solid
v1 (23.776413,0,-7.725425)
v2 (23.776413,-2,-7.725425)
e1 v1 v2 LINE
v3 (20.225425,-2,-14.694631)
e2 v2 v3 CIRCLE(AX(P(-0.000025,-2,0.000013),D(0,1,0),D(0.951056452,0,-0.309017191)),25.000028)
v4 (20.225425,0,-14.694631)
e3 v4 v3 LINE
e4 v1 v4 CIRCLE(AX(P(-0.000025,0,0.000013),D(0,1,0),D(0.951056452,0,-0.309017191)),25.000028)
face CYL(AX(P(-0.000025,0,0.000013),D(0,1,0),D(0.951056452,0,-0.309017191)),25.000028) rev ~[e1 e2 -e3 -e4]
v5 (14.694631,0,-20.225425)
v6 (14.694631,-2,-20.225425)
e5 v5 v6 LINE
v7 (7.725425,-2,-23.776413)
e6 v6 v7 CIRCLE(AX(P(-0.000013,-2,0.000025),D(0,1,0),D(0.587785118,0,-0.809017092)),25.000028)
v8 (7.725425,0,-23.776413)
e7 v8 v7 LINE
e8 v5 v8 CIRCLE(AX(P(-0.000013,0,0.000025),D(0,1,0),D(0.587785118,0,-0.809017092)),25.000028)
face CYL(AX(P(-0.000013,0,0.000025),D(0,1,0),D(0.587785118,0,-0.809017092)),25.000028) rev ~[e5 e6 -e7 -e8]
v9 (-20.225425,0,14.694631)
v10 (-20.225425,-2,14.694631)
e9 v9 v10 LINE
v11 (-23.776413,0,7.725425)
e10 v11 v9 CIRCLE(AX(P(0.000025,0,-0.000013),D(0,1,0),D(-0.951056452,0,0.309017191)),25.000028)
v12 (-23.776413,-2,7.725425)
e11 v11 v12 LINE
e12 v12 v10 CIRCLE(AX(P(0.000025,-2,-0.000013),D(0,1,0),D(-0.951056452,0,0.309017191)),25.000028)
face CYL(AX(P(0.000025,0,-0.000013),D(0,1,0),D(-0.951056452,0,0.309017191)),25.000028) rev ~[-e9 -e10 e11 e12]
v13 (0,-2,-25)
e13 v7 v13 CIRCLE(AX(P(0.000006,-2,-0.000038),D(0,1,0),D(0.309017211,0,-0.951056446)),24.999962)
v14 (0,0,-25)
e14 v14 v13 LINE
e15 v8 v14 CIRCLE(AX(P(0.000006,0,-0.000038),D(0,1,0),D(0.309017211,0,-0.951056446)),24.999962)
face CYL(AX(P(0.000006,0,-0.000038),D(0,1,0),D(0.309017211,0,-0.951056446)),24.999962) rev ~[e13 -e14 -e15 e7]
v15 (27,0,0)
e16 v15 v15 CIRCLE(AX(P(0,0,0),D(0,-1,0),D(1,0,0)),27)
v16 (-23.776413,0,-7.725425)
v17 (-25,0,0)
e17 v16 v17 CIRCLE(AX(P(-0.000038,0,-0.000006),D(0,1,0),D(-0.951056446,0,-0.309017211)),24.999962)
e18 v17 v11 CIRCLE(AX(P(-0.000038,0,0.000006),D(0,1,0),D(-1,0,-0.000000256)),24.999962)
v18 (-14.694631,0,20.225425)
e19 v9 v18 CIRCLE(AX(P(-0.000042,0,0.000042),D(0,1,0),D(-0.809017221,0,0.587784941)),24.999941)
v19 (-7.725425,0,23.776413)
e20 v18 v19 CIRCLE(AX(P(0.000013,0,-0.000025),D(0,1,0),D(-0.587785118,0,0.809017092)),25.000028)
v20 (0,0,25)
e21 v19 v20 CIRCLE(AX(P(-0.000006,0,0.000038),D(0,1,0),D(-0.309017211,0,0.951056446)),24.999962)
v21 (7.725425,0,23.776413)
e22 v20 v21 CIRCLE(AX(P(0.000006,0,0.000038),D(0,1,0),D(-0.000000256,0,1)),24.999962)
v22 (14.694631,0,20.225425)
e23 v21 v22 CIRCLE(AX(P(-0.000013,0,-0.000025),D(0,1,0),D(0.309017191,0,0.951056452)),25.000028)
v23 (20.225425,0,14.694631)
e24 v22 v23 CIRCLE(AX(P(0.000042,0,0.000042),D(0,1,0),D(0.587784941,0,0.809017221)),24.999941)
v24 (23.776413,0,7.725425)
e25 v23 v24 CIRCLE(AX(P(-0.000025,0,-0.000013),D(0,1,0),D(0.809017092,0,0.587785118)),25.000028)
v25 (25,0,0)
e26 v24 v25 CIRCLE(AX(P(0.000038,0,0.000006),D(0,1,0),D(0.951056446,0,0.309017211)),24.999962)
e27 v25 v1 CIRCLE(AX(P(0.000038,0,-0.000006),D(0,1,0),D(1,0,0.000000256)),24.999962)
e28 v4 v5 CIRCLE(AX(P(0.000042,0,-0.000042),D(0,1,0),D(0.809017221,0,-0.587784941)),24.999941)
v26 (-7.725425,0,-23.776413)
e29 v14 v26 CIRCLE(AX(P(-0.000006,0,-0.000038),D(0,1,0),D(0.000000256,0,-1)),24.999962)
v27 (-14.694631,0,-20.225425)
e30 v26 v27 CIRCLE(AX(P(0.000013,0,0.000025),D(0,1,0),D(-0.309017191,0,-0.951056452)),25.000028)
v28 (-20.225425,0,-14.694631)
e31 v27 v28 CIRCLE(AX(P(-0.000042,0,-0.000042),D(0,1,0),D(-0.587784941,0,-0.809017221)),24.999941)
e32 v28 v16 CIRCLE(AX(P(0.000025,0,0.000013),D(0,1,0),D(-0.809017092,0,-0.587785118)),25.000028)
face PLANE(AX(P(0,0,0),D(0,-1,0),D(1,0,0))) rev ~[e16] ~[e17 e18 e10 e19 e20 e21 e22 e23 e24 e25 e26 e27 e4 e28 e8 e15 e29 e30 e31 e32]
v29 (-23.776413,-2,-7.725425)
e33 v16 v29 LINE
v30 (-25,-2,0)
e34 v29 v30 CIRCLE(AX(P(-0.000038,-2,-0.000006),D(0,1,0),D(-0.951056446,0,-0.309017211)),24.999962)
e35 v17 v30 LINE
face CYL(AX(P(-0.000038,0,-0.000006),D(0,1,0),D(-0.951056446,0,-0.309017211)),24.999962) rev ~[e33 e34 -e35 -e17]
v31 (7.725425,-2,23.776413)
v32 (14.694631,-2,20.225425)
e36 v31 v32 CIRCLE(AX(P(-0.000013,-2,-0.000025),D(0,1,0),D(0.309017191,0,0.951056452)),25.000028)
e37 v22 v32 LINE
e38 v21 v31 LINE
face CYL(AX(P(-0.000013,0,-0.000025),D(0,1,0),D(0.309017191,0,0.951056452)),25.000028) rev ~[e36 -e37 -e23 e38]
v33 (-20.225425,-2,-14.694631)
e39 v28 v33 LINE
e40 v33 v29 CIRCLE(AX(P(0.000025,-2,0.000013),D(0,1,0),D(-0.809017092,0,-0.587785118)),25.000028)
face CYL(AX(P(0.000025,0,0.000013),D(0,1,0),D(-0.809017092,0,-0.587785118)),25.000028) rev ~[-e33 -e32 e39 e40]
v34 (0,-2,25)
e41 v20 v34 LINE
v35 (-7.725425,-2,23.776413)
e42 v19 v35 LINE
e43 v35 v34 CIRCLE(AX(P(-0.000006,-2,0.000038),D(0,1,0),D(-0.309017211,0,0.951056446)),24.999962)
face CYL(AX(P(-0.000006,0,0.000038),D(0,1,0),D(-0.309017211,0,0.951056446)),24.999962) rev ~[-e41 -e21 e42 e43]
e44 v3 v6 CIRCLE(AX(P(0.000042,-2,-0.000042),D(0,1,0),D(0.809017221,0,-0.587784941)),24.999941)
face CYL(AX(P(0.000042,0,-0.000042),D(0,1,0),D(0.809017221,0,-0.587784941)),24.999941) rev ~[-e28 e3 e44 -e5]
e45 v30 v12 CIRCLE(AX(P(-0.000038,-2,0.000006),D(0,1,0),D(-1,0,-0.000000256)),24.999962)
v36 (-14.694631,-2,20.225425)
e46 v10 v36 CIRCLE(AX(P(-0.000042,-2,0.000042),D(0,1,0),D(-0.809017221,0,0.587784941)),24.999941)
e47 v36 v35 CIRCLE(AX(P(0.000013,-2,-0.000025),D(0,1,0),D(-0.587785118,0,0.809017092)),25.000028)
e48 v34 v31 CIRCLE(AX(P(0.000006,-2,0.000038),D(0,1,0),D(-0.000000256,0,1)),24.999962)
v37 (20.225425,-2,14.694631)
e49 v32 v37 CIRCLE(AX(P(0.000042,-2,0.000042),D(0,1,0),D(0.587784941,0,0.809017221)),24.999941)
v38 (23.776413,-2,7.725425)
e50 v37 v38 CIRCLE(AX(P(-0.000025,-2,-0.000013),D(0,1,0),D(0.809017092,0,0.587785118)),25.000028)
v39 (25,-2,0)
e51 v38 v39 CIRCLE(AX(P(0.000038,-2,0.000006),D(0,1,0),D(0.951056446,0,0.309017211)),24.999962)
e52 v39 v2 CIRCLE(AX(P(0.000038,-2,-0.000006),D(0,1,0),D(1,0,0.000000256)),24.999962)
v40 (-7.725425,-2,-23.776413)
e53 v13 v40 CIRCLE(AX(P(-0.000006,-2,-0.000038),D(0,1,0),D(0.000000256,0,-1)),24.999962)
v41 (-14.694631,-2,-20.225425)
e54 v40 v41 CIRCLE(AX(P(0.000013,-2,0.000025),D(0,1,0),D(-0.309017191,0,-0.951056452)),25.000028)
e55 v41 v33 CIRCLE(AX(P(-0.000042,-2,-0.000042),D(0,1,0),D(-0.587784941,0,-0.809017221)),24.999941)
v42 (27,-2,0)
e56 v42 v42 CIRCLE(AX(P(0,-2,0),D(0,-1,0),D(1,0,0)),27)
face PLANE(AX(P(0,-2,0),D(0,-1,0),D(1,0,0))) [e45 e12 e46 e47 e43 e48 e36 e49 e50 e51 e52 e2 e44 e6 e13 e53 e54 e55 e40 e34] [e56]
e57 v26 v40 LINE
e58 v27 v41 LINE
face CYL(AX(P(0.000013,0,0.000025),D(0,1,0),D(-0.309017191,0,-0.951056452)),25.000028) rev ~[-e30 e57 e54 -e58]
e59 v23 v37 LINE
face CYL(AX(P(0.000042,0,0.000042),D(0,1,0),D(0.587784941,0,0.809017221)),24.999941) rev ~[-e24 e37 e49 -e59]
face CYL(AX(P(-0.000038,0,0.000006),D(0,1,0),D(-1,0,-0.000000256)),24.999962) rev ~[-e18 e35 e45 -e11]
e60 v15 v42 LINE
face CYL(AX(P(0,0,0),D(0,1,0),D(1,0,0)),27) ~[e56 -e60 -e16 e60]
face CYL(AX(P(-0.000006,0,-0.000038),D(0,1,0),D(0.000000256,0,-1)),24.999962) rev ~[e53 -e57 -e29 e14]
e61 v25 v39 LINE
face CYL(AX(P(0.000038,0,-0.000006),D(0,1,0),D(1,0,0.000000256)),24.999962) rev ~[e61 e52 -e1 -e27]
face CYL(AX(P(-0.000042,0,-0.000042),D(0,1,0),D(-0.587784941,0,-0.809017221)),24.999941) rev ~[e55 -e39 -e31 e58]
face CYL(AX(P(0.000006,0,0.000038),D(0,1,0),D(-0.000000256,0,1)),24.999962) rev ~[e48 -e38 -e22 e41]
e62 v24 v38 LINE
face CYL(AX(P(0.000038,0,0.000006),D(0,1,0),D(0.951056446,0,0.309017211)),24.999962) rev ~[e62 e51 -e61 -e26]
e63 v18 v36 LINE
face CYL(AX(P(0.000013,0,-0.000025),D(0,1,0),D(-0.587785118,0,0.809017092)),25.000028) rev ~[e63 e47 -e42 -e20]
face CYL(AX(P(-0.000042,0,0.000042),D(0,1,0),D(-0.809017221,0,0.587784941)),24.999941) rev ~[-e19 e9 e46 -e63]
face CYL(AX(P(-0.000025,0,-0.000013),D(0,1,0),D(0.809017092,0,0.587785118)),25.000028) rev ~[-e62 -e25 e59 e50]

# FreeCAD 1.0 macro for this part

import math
import FreeCAD as App
import Part
import Sketcher

doc = App.newDocument("Part")
params = doc.addObject("Spreadsheet::Sheet", "Params")
for row, (alias, value) in enumerate([
    ("sketch1_diameter", "54 mm"),
    ("pad1_length", "2 mm"),
], start=1):
    params.set(f"A{row}", alias)
    params.set(f"B{row}", "=" + value)
    params.setAlias(f"B{row}", alias)

body = doc.addObject("PartDesign::Body", "Body")

# Sketch on XZ plane
sketch1 = body.newObject("Sketcher::SketchObject", "Sketch")
sketch1.AttachmentSupport = (doc.getObject("XZ_Plane"), [""])
sketch1.MapMode = "FlatFace"
sketch1.addGeometry(Part.Circle(App.Vector(0, 0, 0), App.Vector(0, 0, 1), 27), False)
sketch1.addGeometry(Part.ArcOfCircle(Part.Circle(App.Vector(-0.000025, -0.000013, 0), App.Vector(0, 0, 1), 25.000028), math.radians(18.000012), math.radians(35.99999)), False)
sketch1.addGeometry(Part.ArcOfCircle(Part.Circle(App.Vector(0.000038, 0.000006, 0), App.Vector(0, 0, 1), 24.999962), math.radians(-0.000015), math.radians(18.000013)), False)
sketch1.addGeometry(Part.ArcOfCircle(Part.Circle(App.Vector(0.000038, -0.000006, 0), App.Vector(0, 0, 1), 24.999962), math.radians(-18.000013), math.radians(0.000015)), False)
sketch1.addGeometry(Part.ArcOfCircle(Part.Circle(App.Vector(-0.000025, 0.000013, 0), App.Vector(0, 0, 1), 25.000028), math.radians(-35.99999), math.radians(-18.000012)), False)
sketch1.addGeometry(Part.ArcOfCircle(Part.Circle(App.Vector(0.000042, -0.000042, 0), App.Vector(0, 0, 1), 24.999941), math.radians(-54.000022), math.radians(-35.999978)), False)
sketch1.addGeometry(Part.ArcOfCircle(Part.Circle(App.Vector(-0.000013, 0.000025, 0), App.Vector(0, 0, 1), 25.000028), math.radians(-71.999988), math.radians(-54.00001)), False)
sketch1.addGeometry(Part.ArcOfCircle(Part.Circle(App.Vector(0.000006, -0.000038, 0), App.Vector(0, 0, 1), 24.999962), math.radians(-90.000015), math.radians(-71.999987)), False)
sketch1.addGeometry(Part.ArcOfCircle(Part.Circle(App.Vector(-0.000006, -0.000038, 0), App.Vector(0, 0, 1), 24.999962), math.radians(-108.000013), math.radians(-89.999985)), False)
sketch1.addGeometry(Part.ArcOfCircle(Part.Circle(App.Vector(0.000013, 0.000025, 0), App.Vector(0, 0, 1), 25.000028), math.radians(-125.99999), math.radians(-108.000012)), False)
sketch1.addGeometry(Part.ArcOfCircle(Part.Circle(App.Vector(-0.000042, -0.000042, 0), App.Vector(0, 0, 1), 24.999941), math.radians(-144.000022), math.radians(-125.999978)), False)
sketch1.addGeometry(Part.ArcOfCircle(Part.Circle(App.Vector(0.000025, 0.000013, 0), App.Vector(0, 0, 1), 25.000028), math.radians(-161.999988), math.radians(-144.00001)), False)
sketch1.addGeometry(Part.ArcOfCircle(Part.Circle(App.Vector(-0.000038, -0.000006, 0), App.Vector(0, 0, 1), 24.999962), math.radians(179.999985), math.radians(198.000013)), False)
sketch1.addGeometry(Part.ArcOfCircle(Part.Circle(App.Vector(-0.000038, 0.000006, 0), App.Vector(0, 0, 1), 24.999962), math.radians(161.999987), math.radians(180.000015)), False)
sketch1.addGeometry(Part.ArcOfCircle(Part.Circle(App.Vector(0.000025, -0.000013, 0), App.Vector(0, 0, 1), 25.000028), math.radians(144.00001), math.radians(161.999988)), False)
sketch1.addGeometry(Part.ArcOfCircle(Part.Circle(App.Vector(-0.000042, 0.000042, 0), App.Vector(0, 0, 1), 24.999941), math.radians(125.999978), math.radians(144.000022)), False)
sketch1.addGeometry(Part.ArcOfCircle(Part.Circle(App.Vector(0.000013, -0.000025, 0), App.Vector(0, 0, 1), 25.000028), math.radians(108.000012), math.radians(125.99999)), False)
sketch1.addGeometry(Part.ArcOfCircle(Part.Circle(App.Vector(-0.000006, 0.000038, 0), App.Vector(0, 0, 1), 24.999962), math.radians(89.999985), math.radians(108.000013)), False)
sketch1.addGeometry(Part.ArcOfCircle(Part.Circle(App.Vector(0.000006, 0.000038, 0), App.Vector(0, 0, 1), 24.999962), math.radians(71.999987), math.radians(90.000015)), False)
sketch1.addGeometry(Part.ArcOfCircle(Part.Circle(App.Vector(-0.000013, -0.000025, 0), App.Vector(0, 0, 1), 25.000028), math.radians(54.00001), math.radians(71.999988)), False)
sketch1.addGeometry(Part.ArcOfCircle(Part.Circle(App.Vector(0.000042, 0.000042, 0), App.Vector(0, 0, 1), 24.999941), math.radians(35.999978), math.radians(54.000022)), False)
sketch1.addConstraint(Sketcher.Constraint("Coincident", 1, 1, 2, 2))
sketch1.addConstraint(Sketcher.Constraint("Coincident", 2, 1, 3, 2))
sketch1.addConstraint(Sketcher.Constraint("Coincident", 3, 1, 4, 2))
sketch1.addConstraint(Sketcher.Constraint("Coincident", 4, 1, 5, 2))
sketch1.addConstraint(Sketcher.Constraint("Coincident", 5, 1, 6, 2))
sketch1.addConstraint(Sketcher.Constraint("Coincident", 6, 1, 7, 2))
sketch1.addConstraint(Sketcher.Constraint("Coincident", 7, 1, 8, 2))
sketch1.addConstraint(Sketcher.Constraint("Coincident", 8, 1, 9, 2))
sketch1.addConstraint(Sketcher.Constraint("Coincident", 9, 1, 10, 2))
sketch1.addConstraint(Sketcher.Constraint("Coincident", 10, 1, 11, 2))
sketch1.addConstraint(Sketcher.Constraint("Coincident", 11, 1, 12, 2))
sketch1.addConstraint(Sketcher.Constraint("Coincident", 12, 1, 13, 2))
sketch1.addConstraint(Sketcher.Constraint("Coincident", 13, 1, 14, 2))
sketch1.addConstraint(Sketcher.Constraint("Coincident", 14, 1, 15, 2))
sketch1.addConstraint(Sketcher.Constraint("Coincident", 15, 1, 16, 2))
sketch1.addConstraint(Sketcher.Constraint("Coincident", 16, 1, 17, 2))
sketch1.addConstraint(Sketcher.Constraint("Coincident", 17, 1, 18, 2))
sketch1.addConstraint(Sketcher.Constraint("Coincident", 18, 1, 19, 2))
sketch1.addConstraint(Sketcher.Constraint("Coincident", 19, 1, 20, 2))
sketch1.addConstraint(Sketcher.Constraint("Coincident", 20, 1, 1, 2))
sketch1.addConstraint(Sketcher.Constraint("Coincident", 0, 3, -1, 1))
sketch1.addConstraint(Sketcher.Constraint("PointOnObject", 2, 1, -1))
sketch1.addConstraint(Sketcher.Constraint("PointOnObject", 7, 1, -2))
sketch1.addConstraint(Sketcher.Constraint("PointOnObject", 12, 1, -1))
sketch1.addConstraint(Sketcher.Constraint("PointOnObject", 17, 1, -2))
sketch1.addConstraint(Sketcher.Constraint("Diameter", 0, 54.0))
sketch1.addConstraint(Sketcher.Constraint("DistanceX", -1, 1, 2, 1, 25.0))
sketch1.addConstraint(Sketcher.Constraint("DistanceY", 7, 1, -1, 1, 25.0))
sketch1.addConstraint(Sketcher.Constraint("DistanceX", 12, 1, -1, 1, 25.0))
sketch1.addConstraint(Sketcher.Constraint("DistanceY", -1, 1, 17, 1, 25.0))
sketch1.addConstraint(Sketcher.Constraint("DistanceY", 5, 1, 3, 1, 12.5))
sketch1.addConstraint(Sketcher.Constraint("DistanceX", 6, 1, 4, 1, 12.5))
sketch1.addConstraint(Sketcher.Constraint("DistanceX", 10, 1, 8, 1, 12.5))
sketch1.addConstraint(Sketcher.Constraint("DistanceY", 9, 1, 11, 1, 12.5))
sketch1.addConstraint(Sketcher.Constraint("DistanceY", 13, 1, 15, 1, 12.5))
sketch1.addConstraint(Sketcher.Constraint("DistanceX", 14, 1, 16, 1, 12.5))
sketch1.addConstraint(Sketcher.Constraint("DistanceY", 1, 1, 19, 1, 12.5))
sketch1.addConstraint(Sketcher.Constraint("DistanceX", 18, 1, 20, 1, 12.5))
sketch1.addConstraint(Sketcher.Constraint("Radius", 1, 25.000028))
sketch1.addConstraint(Sketcher.Constraint("Radius", 4, 25.000028))
sketch1.addConstraint(Sketcher.Constraint("Radius", 5, 24.999941))
sketch1.addConstraint(Sketcher.Constraint("Radius", 6, 25.000028))
sketch1.addConstraint(Sketcher.Constraint("Radius", 9, 25.000028))
sketch1.addConstraint(Sketcher.Constraint("Radius", 10, 24.999941))
sketch1.addConstraint(Sketcher.Constraint("Radius", 11, 25.000028))
sketch1.addConstraint(Sketcher.Constraint("Radius", 14, 25.000028))
sketch1.addConstraint(Sketcher.Constraint("Radius", 15, 24.999941))
sketch1.addConstraint(Sketcher.Constraint("Radius", 16, 25.000028))
sketch1.addConstraint(Sketcher.Constraint("Radius", 19, 25.000028))
sketch1.addConstraint(Sketcher.Constraint("Radius", 20, 24.999941))
sketch1.addConstraint(Sketcher.Constraint("Radius", 2, 24.999962))
sketch1.addConstraint(Sketcher.Constraint("Radius", 3, 24.999962))
sketch1.addConstraint(Sketcher.Constraint("Radius", 7, 24.999962))
sketch1.addConstraint(Sketcher.Constraint("Radius", 8, 24.999962))
sketch1.addConstraint(Sketcher.Constraint("Radius", 12, 24.999962))
sketch1.addConstraint(Sketcher.Constraint("Radius", 13, 24.999962))
sketch1.addConstraint(Sketcher.Constraint("Radius", 17, 24.999962))
sketch1.addConstraint(Sketcher.Constraint("Radius", 18, 24.999962))
sketch1.addConstraint(Sketcher.Constraint("DistanceY", 4, 1, -1, 1, 14.694631))
sketch1.addConstraint(Sketcher.Constraint("DistanceX", -1, 1, 5, 1, 14.694631))
sketch1.addConstraint(Sketcher.Constraint("DistanceX", 9, 1, -1, 1, 14.694631))
sketch1.addConstraint(Sketcher.Constraint("DistanceY", 10, 1, -1, 1, 14.694631))
sketch1.addConstraint(Sketcher.Constraint("DistanceY", -1, 1, 14, 1, 14.694631))
sketch1.addConstraint(Sketcher.Constraint("DistanceX", 15, 1, -1, 1, 14.694631))
sketch1.addConstraint(Sketcher.Constraint("DistanceX", -1, 1, 19, 1, 14.694631))
sketch1.addConstraint(Sketcher.Constraint("DistanceY", -1, 1, 20, 1, 14.694631))
sketch1.addConstraint(Sketcher.Constraint("DistanceX", 20, 3, 1, 1, 23.776371))
sketch1.addConstraint(Sketcher.Constraint("DistanceY", 2, 3, 1, 1, 7.725419))
sketch1.addConstraint(Sketcher.Constraint("DistanceY", 3, 3, 1, 1, 7.725431))
sketch1.addConstraint(Sketcher.Constraint("DistanceY", 11, 3, 1, 1, 7.725412))
sketch1.addConstraint(Sketcher.Constraint("DistanceX", 5, 3, 1, 1, 23.776371))
sketch1.addConstraint(Sketcher.Constraint("DistanceY", 3, 1, 1, 1, 15.45085))
sketch1.addConstraint(Sketcher.Constraint("DistanceX", 4, 1, 1, 1, 3.550988))
sketch1.addConstraint(Sketcher.Constraint("DistanceY", 6, 1, 5, 1, 3.550988))
sketch1.addConstraint(Sketcher.Constraint("DistanceX", 8, 1, 6, 1, 15.45085))
sketch1.addConstraint(Sketcher.Constraint("DistanceY", 8, 1, 10, 3, 23.776371))
sketch1.addConstraint(Sketcher.Constraint("DistanceX", 8, 1, 8, 3, 7.725419))
sketch1.addConstraint(Sketcher.Constraint("DistanceY", 11, 1, 13, 1, 15.45085))
sketch1.addConstraint(Sketcher.Constraint("DistanceX", 13, 1, 15, 3, 23.776371))
sketch1.addConstraint(Sketcher.Constraint("DistanceY", 13, 3, 13, 1, 7.725419))
sketch1.addConstraint(Sketcher.Constraint("DistanceY", 15, 1, 16, 1, 3.550988))
sketch1.addConstraint(Sketcher.Constraint("DistanceY", 20, 3, 18, 1, 23.776371))
sketch1.setExpression("Constraints[25]", "Params.sketch1_diameter")
pad1 = body.newObject("PartDesign::Pad", "Pad")
pad1.Profile = sketch1
pad1.setExpression("Length", "Params.pad1_length")

doc.recompute()
